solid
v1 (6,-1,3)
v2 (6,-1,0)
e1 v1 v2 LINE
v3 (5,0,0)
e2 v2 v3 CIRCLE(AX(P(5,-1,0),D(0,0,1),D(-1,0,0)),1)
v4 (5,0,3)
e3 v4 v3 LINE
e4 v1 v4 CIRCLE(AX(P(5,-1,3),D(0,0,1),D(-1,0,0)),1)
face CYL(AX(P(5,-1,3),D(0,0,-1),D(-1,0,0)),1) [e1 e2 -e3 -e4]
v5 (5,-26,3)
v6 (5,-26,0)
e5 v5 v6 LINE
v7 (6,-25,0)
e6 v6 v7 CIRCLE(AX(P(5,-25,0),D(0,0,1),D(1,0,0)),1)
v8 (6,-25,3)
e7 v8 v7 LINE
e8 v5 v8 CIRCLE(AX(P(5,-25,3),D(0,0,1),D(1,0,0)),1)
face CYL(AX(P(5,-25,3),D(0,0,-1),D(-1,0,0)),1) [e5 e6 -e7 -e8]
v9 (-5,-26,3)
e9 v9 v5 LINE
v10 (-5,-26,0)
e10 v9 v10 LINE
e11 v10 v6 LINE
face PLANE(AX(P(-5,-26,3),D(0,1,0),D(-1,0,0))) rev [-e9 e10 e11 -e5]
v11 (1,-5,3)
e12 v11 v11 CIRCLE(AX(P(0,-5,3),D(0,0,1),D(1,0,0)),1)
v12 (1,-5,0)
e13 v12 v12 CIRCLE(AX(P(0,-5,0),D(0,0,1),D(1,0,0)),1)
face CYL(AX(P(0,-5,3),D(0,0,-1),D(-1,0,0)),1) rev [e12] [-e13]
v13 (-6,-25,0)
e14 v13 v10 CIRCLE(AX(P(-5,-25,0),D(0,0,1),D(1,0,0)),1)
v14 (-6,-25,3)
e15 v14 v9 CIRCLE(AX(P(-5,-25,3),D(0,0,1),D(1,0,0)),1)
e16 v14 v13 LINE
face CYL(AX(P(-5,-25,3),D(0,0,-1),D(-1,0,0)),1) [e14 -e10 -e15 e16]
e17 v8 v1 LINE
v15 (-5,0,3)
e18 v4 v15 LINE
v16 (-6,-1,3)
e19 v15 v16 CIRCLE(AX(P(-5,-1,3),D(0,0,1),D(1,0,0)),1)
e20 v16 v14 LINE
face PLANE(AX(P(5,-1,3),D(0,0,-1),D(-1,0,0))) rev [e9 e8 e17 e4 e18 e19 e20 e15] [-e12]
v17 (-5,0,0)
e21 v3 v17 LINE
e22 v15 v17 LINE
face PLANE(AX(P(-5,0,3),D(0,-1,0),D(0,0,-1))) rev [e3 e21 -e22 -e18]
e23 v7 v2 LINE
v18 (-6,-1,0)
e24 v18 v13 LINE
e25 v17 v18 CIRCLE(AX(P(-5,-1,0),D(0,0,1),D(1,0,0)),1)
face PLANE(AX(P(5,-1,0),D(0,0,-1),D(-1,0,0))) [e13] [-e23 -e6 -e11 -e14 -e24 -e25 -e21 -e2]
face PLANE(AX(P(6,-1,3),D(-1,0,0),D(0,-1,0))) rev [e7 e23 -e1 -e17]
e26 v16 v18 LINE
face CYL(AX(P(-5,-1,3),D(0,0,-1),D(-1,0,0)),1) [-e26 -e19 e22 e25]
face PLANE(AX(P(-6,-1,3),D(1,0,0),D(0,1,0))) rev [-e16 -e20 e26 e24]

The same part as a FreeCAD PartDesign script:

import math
import FreeCAD as App
import Part
import Sketcher

V = App.Vector

doc = App.newDocument("Part")
params = doc.addObject("Spreadsheet::Sheet", "Params")
for row, (alias, value) in enumerate([
    ("sketch1_diameter", "2 mm"),
    ("sketch1_width", "10 mm"),
    ("sketch1_height", "24 mm"),
    ("pad1_length", "3 mm"),
], start=1):
    params.set(f"A{row}", alias)
    params.set(f"B{row}", "=" + value)
    params.setAlias(f"B{row}", alias)

body = doc.addObject("PartDesign::Body", "Body")

sketch1 = body.newObject("Sketcher::SketchObject", "Sketch")
sketch1.AttachmentSupport = (doc.getObject("XY_Plane"), [""])
sketch1.MapMode = "FlatFace"
sketch1.addGeometry(Part.LineSegment(V(5, 0, 0), V(-5, 0, 0)), False)
sketch1.addGeometry(Part.ArcOfCircle(Part.Circle(V(-5, -1, 0), V(0, 0, 1), 1), math.radians(90), math.radians(180)), False)
sketch1.addGeometry(Part.LineSegment(V(-6, -1, 0), V(-6, -25, 0)), False)
sketch1.addGeometry(Part.ArcOfCircle(Part.Circle(V(-5, -25, 0), V(0, 0, 1), 1), math.radians(-180), math.radians(-90)), False)
sketch1.addGeometry(Part.LineSegment(V(-5, -26, 0), V(5, -26, 0)), False)
sketch1.addGeometry(Part.ArcOfCircle(Part.Circle(V(5, -25, 0), V(0, 0, 1), 1), math.radians(-90), math.radians(0)), False)
sketch1.addGeometry(Part.LineSegment(V(6, -25, 0), V(6, -1, 0)), False)
sketch1.addGeometry(Part.ArcOfCircle(Part.Circle(V(5, -1, 0), V(0, 0, 1), 1), math.radians(0), math.radians(90)), False)
sketch1.addGeometry(Part.Circle(V(0, -5, 0), V(0, 0, 1), 1), False)
sketch1.addConstraint(Sketcher.Constraint("Tangent", 0, 2, 1, 1))
sketch1.addConstraint(Sketcher.Constraint("Tangent", 1, 2, 2, 1))
sketch1.addConstraint(Sketcher.Constraint("Tangent", 2, 2, 3, 1))
sketch1.addConstraint(Sketcher.Constraint("Tangent", 3, 2, 4, 1))
sketch1.addConstraint(Sketcher.Constraint("Tangent", 4, 2, 5, 1))
sketch1.addConstraint(Sketcher.Constraint("Tangent", 5, 2, 6, 1))
sketch1.addConstraint(Sketcher.Constraint("Tangent", 6, 2, 7, 1))
sketch1.addConstraint(Sketcher.Constraint("Tangent", 7, 2, 0, 1))
sketch1.addConstraint(Sketcher.Constraint("Horizontal", 0))
sketch1.addConstraint(Sketcher.Constraint("Vertical", 2))
sketch1.addConstraint(Sketcher.Constraint("Horizontal", 4))
sketch1.addConstraint(Sketcher.Constraint("Vertical", 6))
sketch1.addConstraint(Sketcher.Constraint("Equal", 1, 3))
sketch1.addConstraint(Sketcher.Constraint("Equal", 3, 5))
sketch1.addConstraint(Sketcher.Constraint("Equal", 5, 7))
sketch1.addConstraint(Sketcher.Constraint("Equal", 7, 8))
sketch1.addConstraint(Sketcher.Constraint("Symmetric", 0, 2, 7, 2, -1, 1))
sketch1.addConstraint(Sketcher.Constraint("PointOnObject", 8, 3, -2))
sketch1.addConstraint(Sketcher.Constraint("Diameter", 8, 2.0))
sketch1.addConstraint(Sketcher.Constraint("DistanceX", 0, 2, 0, 1, 10.0))
sketch1.addConstraint(Sketcher.Constraint("DistanceY", 2, 2, 2, 1, 24.0))
sketch1.addConstraint(Sketcher.Constraint("DistanceY", 8, 3, -1, 1, 5.0))
sketch1.setExpression("Constraints[18]", "Params.sketch1_diameter")
sketch1.setExpression("Constraints[19]", "Params.sketch1_width")
sketch1.setExpression("Constraints[20]", "Params.sketch1_height")
pad1 = body.newObject("PartDesign::Pad", "Pad")
pad1.Profile = sketch1
pad1.setExpression("Length", "Params.pad1_length")

doc.recompute()
